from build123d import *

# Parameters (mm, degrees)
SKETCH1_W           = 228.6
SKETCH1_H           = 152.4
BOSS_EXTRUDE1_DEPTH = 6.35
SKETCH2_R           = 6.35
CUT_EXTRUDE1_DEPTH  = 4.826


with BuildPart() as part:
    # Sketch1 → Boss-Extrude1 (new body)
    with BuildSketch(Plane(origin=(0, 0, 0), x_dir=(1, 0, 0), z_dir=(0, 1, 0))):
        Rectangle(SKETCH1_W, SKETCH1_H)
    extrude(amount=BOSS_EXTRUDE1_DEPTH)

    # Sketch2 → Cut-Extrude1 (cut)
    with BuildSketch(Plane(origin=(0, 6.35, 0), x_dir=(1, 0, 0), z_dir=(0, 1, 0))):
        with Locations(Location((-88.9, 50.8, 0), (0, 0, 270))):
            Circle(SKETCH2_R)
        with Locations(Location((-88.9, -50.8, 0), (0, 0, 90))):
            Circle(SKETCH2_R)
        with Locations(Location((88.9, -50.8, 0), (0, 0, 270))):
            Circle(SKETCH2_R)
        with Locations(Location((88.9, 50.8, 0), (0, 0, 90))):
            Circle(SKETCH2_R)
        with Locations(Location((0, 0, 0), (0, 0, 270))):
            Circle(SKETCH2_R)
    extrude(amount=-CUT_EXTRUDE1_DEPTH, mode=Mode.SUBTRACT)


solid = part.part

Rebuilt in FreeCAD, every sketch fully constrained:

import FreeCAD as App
import Part
import Sketcher
Q = App.Units.Quantity

doc = App.newDocument("Part")
body = doc.addObject("PartDesign::Body", "Body")

sketch1 = body.newObject("Sketcher::SketchObject", "Sketch")
sketch1.AttachmentSupport = (doc.getObject("XZ_Plane"), [""])
sketch1.MapMode = "FlatFace"
sketch1.addGeometry(Part.LineSegment(App.Vector(-114, -76, 0), App.Vector(-114, 76, 0)), False)
sketch1.addGeometry(Part.LineSegment(App.Vector(-114, 76, 0), App.Vector(114, 76, 0)), False)
sketch1.addGeometry(Part.LineSegment(App.Vector(114, 76, 0), App.Vector(114, -76, 0)), False)
sketch1.addGeometry(Part.LineSegment(App.Vector(114, -76, 0), App.Vector(-114, -76, 0)), False)
sketch1.addConstraint(Sketcher.Constraint("Coincident", 0, 2, 1, 1))
sketch1.addConstraint(Sketcher.Constraint("Coincident", 1, 2, 2, 1))
sketch1.addConstraint(Sketcher.Constraint("Coincident", 2, 2, 3, 1))
sketch1.addConstraint(Sketcher.Constraint("Coincident", 3, 2, 0, 1))
sketch1.addConstraint(Sketcher.Constraint("Vertical", 0))
sketch1.addConstraint(Sketcher.Constraint("Horizontal", 1))
sketch1.addConstraint(Sketcher.Constraint("Vertical", 2))
sketch1.addConstraint(Sketcher.Constraint("Horizontal", 3))
sketch1.addConstraint(Sketcher.Constraint("Symmetric", 0, 2, 2, 2, -1, 1))
sketch1.addConstraint(Sketcher.Constraint("DistanceX", 1, 1, 1, 2, Q("9 in")))
sketch1.addConstraint(Sketcher.Constraint("DistanceY", 0, 1, 0, 2, Q("6 in")))
pad1 = body.newObject("PartDesign::Pad", "Pad")
pad1.Profile = sketch1
pad1.Length = Q("0.25 in")
pad1.Reversed = True

sketch2 = body.newObject("Sketcher::SketchObject", "Sketch001")
sketch2.AttachmentSupport = (doc.getObject("XZ_Plane"), [""])
sketch2.MapMode = "FlatFace"
sketch2.AttachmentOffset = App.Placement(App.Vector(0, 0, -0.25 * 25.4), App.Rotation())
sketch2.addGeometry(Part.Circle(App.Vector(-89, -51, 0), App.Vector(0, 0, 1), 6), False)
sketch2.addGeometry(Part.Circle(App.Vector(-89, 51, 0), App.Vector(0, 0, 1), 6), False)
sketch2.addGeometry(Part.Circle(App.Vector(89, 51, 0), App.Vector(0, 0, 1), 6), False)
sketch2.addGeometry(Part.Circle(App.Vector(89, -51, 0), App.Vector(0, 0, 1), 6), False)
sketch2.addGeometry(Part.Circle(App.Vector(0, 0, 0), App.Vector(0, 0, 1), 6), False)
sketch2.addConstraint(Sketcher.Constraint("Coincident", 4, 3, -1, 1))
sketch2.addConstraint(Sketcher.Constraint("Equal", 0, 1))
sketch2.addConstraint(Sketcher.Constraint("Equal", 1, 2))
sketch2.addConstraint(Sketcher.Constraint("Equal", 2, 3))
sketch2.addConstraint(Sketcher.Constraint("Equal", 3, 4))
sketch2.addConstraint(Sketcher.Constraint("Symmetric", 0, 3, 2, 3, -1, 1))
sketch2.addConstraint(Sketcher.Constraint("Symmetric", 1, 3, 3, 3, -1, 1))
sketch2.addConstraint(Sketcher.Constraint("Symmetric", 1, 3, 2, 3, -2))
sketch2.addConstraint(Sketcher.Constraint("Diameter", 0, Q("0.5 in")))
sketch2.addConstraint(Sketcher.Constraint("DistanceY", 0, 3, -1, 1, Q("2 in")))
sketch2.addConstraint(Sketcher.Constraint("DistanceX", 1, 3, 2, 3, Q("7 in")))
pocket1 = body.newObject("PartDesign::Pocket", "Pocket")
pocket1.Profile = sketch2
pocket1.Length = Q("0.19 in")
pocket1.Reversed = True

doc.recompute()
